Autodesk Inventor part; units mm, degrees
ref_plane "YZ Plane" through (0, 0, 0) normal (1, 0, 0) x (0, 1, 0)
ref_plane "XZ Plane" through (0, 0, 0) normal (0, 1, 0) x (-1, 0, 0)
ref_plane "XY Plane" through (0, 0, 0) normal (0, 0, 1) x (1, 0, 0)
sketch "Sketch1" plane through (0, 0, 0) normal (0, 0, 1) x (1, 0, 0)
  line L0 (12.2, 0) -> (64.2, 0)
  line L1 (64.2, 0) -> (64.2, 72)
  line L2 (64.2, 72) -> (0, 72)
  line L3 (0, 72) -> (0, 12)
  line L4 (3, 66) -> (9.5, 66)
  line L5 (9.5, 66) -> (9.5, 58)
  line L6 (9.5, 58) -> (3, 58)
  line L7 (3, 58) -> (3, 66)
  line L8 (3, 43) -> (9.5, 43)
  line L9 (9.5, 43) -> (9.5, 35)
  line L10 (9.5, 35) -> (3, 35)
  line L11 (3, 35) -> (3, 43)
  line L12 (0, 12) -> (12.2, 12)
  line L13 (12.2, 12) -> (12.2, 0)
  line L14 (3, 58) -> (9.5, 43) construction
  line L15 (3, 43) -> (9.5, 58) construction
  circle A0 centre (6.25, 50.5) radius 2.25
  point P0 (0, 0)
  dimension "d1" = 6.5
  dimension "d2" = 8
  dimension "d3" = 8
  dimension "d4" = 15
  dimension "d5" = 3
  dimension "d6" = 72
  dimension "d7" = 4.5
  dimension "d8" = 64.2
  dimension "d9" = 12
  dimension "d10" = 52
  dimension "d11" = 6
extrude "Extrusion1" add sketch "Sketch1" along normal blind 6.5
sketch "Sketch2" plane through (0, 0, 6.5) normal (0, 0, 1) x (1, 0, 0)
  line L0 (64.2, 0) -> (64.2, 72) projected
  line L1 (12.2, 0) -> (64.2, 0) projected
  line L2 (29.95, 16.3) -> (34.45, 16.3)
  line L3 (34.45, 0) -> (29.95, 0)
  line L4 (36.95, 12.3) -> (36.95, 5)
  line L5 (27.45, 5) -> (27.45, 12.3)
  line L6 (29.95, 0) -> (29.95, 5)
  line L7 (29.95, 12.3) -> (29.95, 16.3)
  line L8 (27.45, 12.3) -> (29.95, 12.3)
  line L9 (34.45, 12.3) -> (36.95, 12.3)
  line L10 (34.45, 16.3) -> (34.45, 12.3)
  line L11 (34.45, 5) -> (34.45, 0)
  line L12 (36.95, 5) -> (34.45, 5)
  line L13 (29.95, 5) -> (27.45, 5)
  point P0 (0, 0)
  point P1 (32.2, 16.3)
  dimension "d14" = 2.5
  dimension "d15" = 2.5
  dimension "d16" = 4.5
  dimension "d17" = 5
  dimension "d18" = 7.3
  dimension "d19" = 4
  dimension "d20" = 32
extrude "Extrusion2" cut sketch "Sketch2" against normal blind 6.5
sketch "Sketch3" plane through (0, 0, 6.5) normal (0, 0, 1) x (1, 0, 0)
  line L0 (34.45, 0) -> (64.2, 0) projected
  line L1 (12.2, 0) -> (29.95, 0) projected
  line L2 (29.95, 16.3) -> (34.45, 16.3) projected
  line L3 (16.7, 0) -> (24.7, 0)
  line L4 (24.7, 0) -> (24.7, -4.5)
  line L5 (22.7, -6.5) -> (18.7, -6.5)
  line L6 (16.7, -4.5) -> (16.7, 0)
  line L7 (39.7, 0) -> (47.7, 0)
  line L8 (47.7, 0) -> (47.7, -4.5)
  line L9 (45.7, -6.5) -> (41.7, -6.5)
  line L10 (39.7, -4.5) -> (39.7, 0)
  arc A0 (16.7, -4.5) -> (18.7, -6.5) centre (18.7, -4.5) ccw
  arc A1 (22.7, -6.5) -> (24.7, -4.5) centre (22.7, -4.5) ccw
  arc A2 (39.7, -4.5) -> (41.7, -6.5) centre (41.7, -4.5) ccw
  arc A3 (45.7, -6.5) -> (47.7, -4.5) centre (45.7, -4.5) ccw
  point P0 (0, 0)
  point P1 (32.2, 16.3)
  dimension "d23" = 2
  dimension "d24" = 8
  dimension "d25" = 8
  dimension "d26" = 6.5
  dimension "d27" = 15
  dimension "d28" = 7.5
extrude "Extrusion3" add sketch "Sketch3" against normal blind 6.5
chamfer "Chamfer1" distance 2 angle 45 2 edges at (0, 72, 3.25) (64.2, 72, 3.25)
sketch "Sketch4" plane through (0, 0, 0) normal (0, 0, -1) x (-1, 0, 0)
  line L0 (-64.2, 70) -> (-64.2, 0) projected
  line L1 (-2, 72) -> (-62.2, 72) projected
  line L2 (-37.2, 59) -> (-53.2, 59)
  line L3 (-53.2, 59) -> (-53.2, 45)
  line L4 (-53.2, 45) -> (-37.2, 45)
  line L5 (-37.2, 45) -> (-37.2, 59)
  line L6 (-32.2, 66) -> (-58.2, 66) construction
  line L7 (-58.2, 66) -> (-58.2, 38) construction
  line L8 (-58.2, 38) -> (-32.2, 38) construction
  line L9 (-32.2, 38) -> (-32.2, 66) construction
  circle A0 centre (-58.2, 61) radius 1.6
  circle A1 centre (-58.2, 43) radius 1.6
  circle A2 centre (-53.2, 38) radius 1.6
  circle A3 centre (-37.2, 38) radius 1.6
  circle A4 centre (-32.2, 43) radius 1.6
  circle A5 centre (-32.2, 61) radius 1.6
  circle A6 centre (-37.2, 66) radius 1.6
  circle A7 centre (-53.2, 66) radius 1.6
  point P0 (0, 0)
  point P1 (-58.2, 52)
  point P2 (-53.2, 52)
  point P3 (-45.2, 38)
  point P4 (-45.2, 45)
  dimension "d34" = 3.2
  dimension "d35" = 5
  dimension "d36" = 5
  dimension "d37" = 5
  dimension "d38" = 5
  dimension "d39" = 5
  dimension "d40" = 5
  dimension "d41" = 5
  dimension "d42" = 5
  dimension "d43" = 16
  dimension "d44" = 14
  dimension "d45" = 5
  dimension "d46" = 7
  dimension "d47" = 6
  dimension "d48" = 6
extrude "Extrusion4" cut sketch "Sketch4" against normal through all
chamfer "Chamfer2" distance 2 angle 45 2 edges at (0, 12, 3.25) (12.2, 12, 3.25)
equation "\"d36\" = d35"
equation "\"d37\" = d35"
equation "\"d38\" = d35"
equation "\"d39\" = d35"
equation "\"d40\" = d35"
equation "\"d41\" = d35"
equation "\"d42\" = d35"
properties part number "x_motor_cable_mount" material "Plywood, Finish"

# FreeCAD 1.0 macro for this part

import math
import FreeCAD as App
import Part
import Sketcher


def edges_at(feature, points):
    """Names of the edges that pass closest to the given points."""
    edges = feature.Shape.Edges
    near = lambda p: min(range(len(edges)), key=lambda i: edges[i].distToShape(Part.Vertex(*p))[0])
    return sorted({f"Edge{near(p) + 1}" for p in points})

doc = App.newDocument("Part")
params = doc.addObject("Spreadsheet::Sheet", "Params")
for row, (alias, value) in enumerate([
    ("sketch1_diameter", "4.5 mm"),
    ("sketch1_width", "52 mm"),
    ("sketch1_height", "12 mm"),
    ("sketch1_height2", "72 mm"),
    ("sketch1_height3", "8 mm"),
    ("pad1_length", "6.5 mm"),
    ("sketch2_height", "5 mm"),
    ("sketch2_height2", "4 mm"),
    ("sketch2_width", "4.5 mm"),
    ("sketch2_width2", "2.5 mm"),
    ("sketch2_height3", "7.3 mm"),
    ("pocket1_length", "6.5 mm"),
    ("sketch3_radius", "2 mm"),
    ("sketch3_width", "8 mm"),
    ("pad2_length", "6.5 mm"),
    ("chamfer_size", "2 mm"),
    ("sketch4_diameter", "3.2 mm"),
    ("sketch4_width", "16 mm"),
    ("sketch4_height", "14 mm"),
    ("chamfer2_size", "2 mm"),
], start=1):
    params.set(f"A{row}", alias)
    params.set(f"B{row}", "=" + value)
    params.setAlias(f"B{row}", alias)

body = doc.addObject("PartDesign::Body", "Body")

# Sketch on XY plane
sketch1 = body.newObject("Sketcher::SketchObject", "Sketch")
sketch1.AttachmentSupport = (doc.getObject("XY_Plane"), [""])
sketch1.MapMode = "FlatFace"
sketch1.addGeometry(Part.LineSegment(App.Vector(12.2, 12, 0), App.Vector(12.2, 0, 0)), False)
sketch1.addGeometry(Part.LineSegment(App.Vector(12.2, 0, 0), App.Vector(64.2, 0, 0)), False)
sketch1.addGeometry(Part.LineSegment(App.Vector(64.2, 0, 0), App.Vector(64.2, 72, 0)), False)
sketch1.addGeometry(Part.LineSegment(App.Vector(64.2, 72, 0), App.Vector(0, 72, 0)), False)
sketch1.addGeometry(Part.LineSegment(App.Vector(0, 72, 0), App.Vector(0, 12, 0)), False)
sketch1.addGeometry(Part.LineSegment(App.Vector(0, 12, 0), App.Vector(12.2, 12, 0)), False)
sketch1.addGeometry(Part.LineSegment(App.Vector(3, 35, 0), App.Vector(3, 43, 0)), False)
sketch1.addGeometry(Part.LineSegment(App.Vector(3, 43, 0), App.Vector(9.5, 43, 0)), False)
sketch1.addGeometry(Part.LineSegment(App.Vector(9.5, 43, 0), App.Vector(9.5, 35, 0)), False)
sketch1.addGeometry(Part.LineSegment(App.Vector(9.5, 35, 0), App.Vector(3, 35, 0)), False)
sketch1.addGeometry(Part.Circle(App.Vector(6.25, 50.5, 0), App.Vector(0, 0, 1), 2.25), False)
sketch1.addGeometry(Part.LineSegment(App.Vector(3, 58, 0), App.Vector(3, 66, 0)), False)
sketch1.addGeometry(Part.LineSegment(App.Vector(3, 66, 0), App.Vector(9.5, 66, 0)), False)
sketch1.addGeometry(Part.LineSegment(App.Vector(9.5, 66, 0), App.Vector(9.5, 58, 0)), False)
sketch1.addGeometry(Part.LineSegment(App.Vector(9.5, 58, 0), App.Vector(3, 58, 0)), False)
sketch1.addConstraint(Sketcher.Constraint("Coincident", 0, 2, 1, 1))
sketch1.addConstraint(Sketcher.Constraint("Coincident", 1, 2, 2, 1))
sketch1.addConstraint(Sketcher.Constraint("Coincident", 2, 2, 3, 1))
sketch1.addConstraint(Sketcher.Constraint("Coincident", 3, 2, 4, 1))
sketch1.addConstraint(Sketcher.Constraint("Coincident", 4, 2, 5, 1))
sketch1.addConstraint(Sketcher.Constraint("Coincident", 5, 2, 0, 1))
sketch1.addConstraint(Sketcher.Constraint("Coincident", 6, 2, 7, 1))
sketch1.addConstraint(Sketcher.Constraint("Coincident", 7, 2, 8, 1))
sketch1.addConstraint(Sketcher.Constraint("Coincident", 8, 2, 9, 1))
sketch1.addConstraint(Sketcher.Constraint("Coincident", 9, 2, 6, 1))
sketch1.addConstraint(Sketcher.Constraint("Coincident", 11, 2, 12, 1))
sketch1.addConstraint(Sketcher.Constraint("Coincident", 12, 2, 13, 1))
sketch1.addConstraint(Sketcher.Constraint("Coincident", 13, 2, 14, 1))
sketch1.addConstraint(Sketcher.Constraint("Coincident", 14, 2, 11, 1))
sketch1.addConstraint(Sketcher.Constraint("Vertical", 0))
sketch1.addConstraint(Sketcher.Constraint("Horizontal", 1))
sketch1.addConstraint(Sketcher.Constraint("Vertical", 2))
sketch1.addConstraint(Sketcher.Constraint("Horizontal", 3))
sketch1.addConstraint(Sketcher.Constraint("Vertical", 4))
sketch1.addConstraint(Sketcher.Constraint("Horizontal", 5))
sketch1.addConstraint(Sketcher.Constraint("Vertical", 6))
sketch1.addConstraint(Sketcher.Constraint("Horizontal", 7))
sketch1.addConstraint(Sketcher.Constraint("Vertical", 8))
sketch1.addConstraint(Sketcher.Constraint("Horizontal", 9))
sketch1.addConstraint(Sketcher.Constraint("Vertical", 11))
sketch1.addConstraint(Sketcher.Constraint("Horizontal", 12))
sketch1.addConstraint(Sketcher.Constraint("Vertical", 13))
sketch1.addConstraint(Sketcher.Constraint("Horizontal", 14))
sketch1.addConstraint(Sketcher.Constraint("PointOnObject", 0, 2, -1))
sketch1.addConstraint(Sketcher.Constraint("PointOnObject", 3, 2, -2))
sketch1.addConstraint(Sketcher.Constraint("Vertical", 9, 2, 11, 2))
sketch1.addConstraint(Sketcher.Constraint("Vertical", 8, 2, 12, 2))
sketch1.addConstraint(Sketcher.Constraint("Equal", 8, 11))
sketch1.addConstraint(Sketcher.Constraint("Diameter", 10, 4.5))
sketch1.addConstraint(Sketcher.Constraint("DistanceX", 1, 1, 1, 2, 52.0))
sketch1.addConstraint(Sketcher.Constraint("DistanceY", 0, 2, 0, 1, 12.0))
sketch1.addConstraint(Sketcher.Constraint("DistanceY", 2, 1, 2, 2, 72.0))
sketch1.addConstraint(Sketcher.Constraint("DistanceY", 6, 1, 6, 2, 8.0))
sketch1.addConstraint(Sketcher.Constraint("DistanceX", 3, 2, 3, 1, 64.2))
sketch1.addConstraint(Sketcher.Constraint("DistanceX", 7, 1, 7, 2, 6.5))
sketch1.addConstraint(Sketcher.Constraint("DistanceX", -1, 1, 6, 2, 3.0))
sketch1.addConstraint(Sketcher.Constraint("DistanceY", 11, 2, 3, 2, 6.0))
sketch1.addConstraint(Sketcher.Constraint("DistanceY", 7, 2, 13, 2, 15.0))
sketch1.addConstraint(Sketcher.Constraint("DistanceY", -1, 1, 10, 3, 50.5))
sketch1.addConstraint(Sketcher.Constraint("DistanceX", -1, 1, 10, 3, 6.25))
sketch1.setExpression("Constraints[33]", "Params.sketch1_diameter")
sketch1.setExpression("Constraints[34]", "Params.sketch1_width")
sketch1.setExpression("Constraints[35]", "Params.sketch1_height")
sketch1.setExpression("Constraints[36]", "Params.sketch1_height2")
sketch1.setExpression("Constraints[37]", "Params.sketch1_height3")
pad1 = body.newObject("PartDesign::Pad", "Pad")
pad1.Profile = sketch1
pad1.setExpression("Length", "Params.pad1_length")

# Sketch on XY plane
sketch2 = body.newObject("Sketcher::SketchObject", "Sketch001")
sketch2.AttachmentSupport = (doc.getObject("XY_Plane"), [""])
sketch2.MapMode = "FlatFace"
sketch2.AttachmentOffset = App.Placement(App.Vector(0, 0, 6.5), App.Rotation())
sketch2.addGeometry(Part.LineSegment(App.Vector(29.95, 5, 0), App.Vector(29.95, 0, 0)), False)
sketch2.addGeometry(Part.LineSegment(App.Vector(29.95, 0, 0), App.Vector(34.45, 0, 0)), False)
sketch2.addGeometry(Part.LineSegment(App.Vector(34.45, 0, 0), App.Vector(34.45, 5, 0)), False)
sketch2.addGeometry(Part.LineSegment(App.Vector(34.45, 5, 0), App.Vector(36.95, 5, 0)), False)
sketch2.addGeometry(Part.LineSegment(App.Vector(36.95, 5, 0), App.Vector(36.95, 12.3, 0)), False)
sketch2.addGeometry(Part.LineSegment(App.Vector(36.95, 12.3, 0), App.Vector(34.45, 12.3, 0)), False)
sketch2.addGeometry(Part.LineSegment(App.Vector(34.45, 12.3, 0), App.Vector(34.45, 16.3, 0)), False)
sketch2.addGeometry(Part.LineSegment(App.Vector(34.45, 16.3, 0), App.Vector(29.95, 16.3, 0)), False)
sketch2.addGeometry(Part.LineSegment(App.Vector(29.95, 16.3, 0), App.Vector(29.95, 12.3, 0)), False)
sketch2.addGeometry(Part.LineSegment(App.Vector(29.95, 12.3, 0), App.Vector(27.45, 12.3, 0)), False)
sketch2.addGeometry(Part.LineSegment(App.Vector(27.45, 12.3, 0), App.Vector(27.45, 5, 0)), False)
sketch2.addGeometry(Part.LineSegment(App.Vector(27.45, 5, 0), App.Vector(29.95, 5, 0)), False)
sketch2.addConstraint(Sketcher.Constraint("Coincident", 0, 2, 1, 1))
sketch2.addConstraint(Sketcher.Constraint("Coincident", 1, 2, 2, 1))
sketch2.addConstraint(Sketcher.Constraint("Coincident", 2, 2, 3, 1))
sketch2.addConstraint(Sketcher.Constraint("Coincident", 3, 2, 4, 1))
sketch2.addConstraint(Sketcher.Constraint("Coincident", 4, 2, 5, 1))
sketch2.addConstraint(Sketcher.Constraint("Coincident", 5, 2, 6, 1))
sketch2.addConstraint(Sketcher.Constraint("Coincident", 6, 2, 7, 1))
sketch2.addConstraint(Sketcher.Constraint("Coincident", 7, 2, 8, 1))
sketch2.addConstraint(Sketcher.Constraint("Coincident", 8, 2, 9, 1))
sketch2.addConstraint(Sketcher.Constraint("Coincident", 9, 2, 10, 1))
sketch2.addConstraint(Sketcher.Constraint("Coincident", 10, 2, 11, 1))
sketch2.addConstraint(Sketcher.Constraint("Coincident", 11, 2, 0, 1))
sketch2.addConstraint(Sketcher.Constraint("Vertical", 0))
sketch2.addConstraint(Sketcher.Constraint("Horizontal", 1))
sketch2.addConstraint(Sketcher.Constraint("Vertical", 2))
sketch2.addConstraint(Sketcher.Constraint("Horizontal", 3))
sketch2.addConstraint(Sketcher.Constraint("Vertical", 4))
sketch2.addConstraint(Sketcher.Constraint("Horizontal", 5))
sketch2.addConstraint(Sketcher.Constraint("Vertical", 6))
sketch2.addConstraint(Sketcher.Constraint("Horizontal", 7))
sketch2.addConstraint(Sketcher.Constraint("Vertical", 8))
sketch2.addConstraint(Sketcher.Constraint("Horizontal", 9))
sketch2.addConstraint(Sketcher.Constraint("Vertical", 10))
sketch2.addConstraint(Sketcher.Constraint("Horizontal", 11))
sketch2.addConstraint(Sketcher.Constraint("PointOnObject", 0, 2, -1))
sketch2.addConstraint(Sketcher.Constraint("Horizontal", 5, 2, 8, 2))
sketch2.addConstraint(Sketcher.Constraint("Horizontal", 3, 2, 10, 2))
sketch2.addConstraint(Sketcher.Constraint("Vertical", 2, 2, 5, 2))
sketch2.addConstraint(Sketcher.Constraint("Vertical", 0, 2, 7, 2))
sketch2.addConstraint(Sketcher.Constraint("Equal", 5, 9))
sketch2.addConstraint(Sketcher.Constraint("DistanceY", 0, 2, 0, 1, 5.0))
sketch2.addConstraint(Sketcher.Constraint("DistanceY", 6, 1, 6, 2, 4.0))
sketch2.addConstraint(Sketcher.Constraint("DistanceX", 1, 1, 1, 2, 4.5))
sketch2.addConstraint(Sketcher.Constraint("DistanceX", 3, 1, 3, 2, 2.5))
sketch2.addConstraint(Sketcher.Constraint("DistanceY", 4, 1, 4, 2, 7.3))
sketch2.addConstraint(Sketcher.Constraint("DistanceX", -1, 1, 0, 2, 29.95))
sketch2.setExpression("Constraints[30]", "Params.sketch2_height")
sketch2.setExpression("Constraints[31]", "Params.sketch2_height2")
sketch2.setExpression("Constraints[32]", "Params.sketch2_width")
sketch2.setExpression("Constraints[33]", "Params.sketch2_width2")
sketch2.setExpression("Constraints[34]", "Params.sketch2_height3")
pocket1 = body.newObject("PartDesign::Pocket", "Pocket")
pocket1.Profile = sketch2
pocket1.setExpression("Length", "Params.pocket1_length")

# Sketch on XY plane
sketch3 = body.newObject("Sketcher::SketchObject", "Sketch002")
sketch3.AttachmentSupport = (doc.getObject("XY_Plane"), [""])
sketch3.MapMode = "FlatFace"
sketch3.AttachmentOffset = App.Placement(App.Vector(0, 0, 6.5), App.Rotation())
sketch3.addGeometry(Part.LineSegment(App.Vector(47.7, 0, 0), App.Vector(39.7, 0, 0)), False)
sketch3.addGeometry(Part.LineSegment(App.Vector(39.7, 0, 0), App.Vector(39.7, -4.5, 0)), False)
sketch3.addGeometry(Part.ArcOfCircle(Part.Circle(App.Vector(41.7, -4.5, 0), App.Vector(0, 0, 1), 2), math.radians(180), math.radians(270)), False)
sketch3.addGeometry(Part.LineSegment(App.Vector(41.7, -6.5, 0), App.Vector(45.7, -6.5, 0)), False)
sketch3.addGeometry(Part.ArcOfCircle(Part.Circle(App.Vector(45.7, -4.5, 0), App.Vector(0, 0, 1), 2), math.radians(-90), math.radians(0)), False)
sketch3.addGeometry(Part.LineSegment(App.Vector(47.7, -4.5, 0), App.Vector(47.7, 0, 0)), False)
sketch3.addGeometry(Part.LineSegment(App.Vector(24.7, 0, 0), App.Vector(16.7, 0, 0)), False)
sketch3.addGeometry(Part.LineSegment(App.Vector(16.7, 0, 0), App.Vector(16.7, -4.5, 0)), False)
sketch3.addGeometry(Part.ArcOfCircle(Part.Circle(App.Vector(18.7, -4.5, 0), App.Vector(0, 0, 1), 2), math.radians(180), math.radians(270)), False)
sketch3.addGeometry(Part.LineSegment(App.Vector(18.7, -6.5, 0), App.Vector(22.7, -6.5, 0)), False)
sketch3.addGeometry(Part.ArcOfCircle(Part.Circle(App.Vector(22.7, -4.5, 0), App.Vector(0, 0, 1), 2), math.radians(-90), math.radians(0)), False)
sketch3.addGeometry(Part.LineSegment(App.Vector(24.7, -4.5, 0), App.Vector(24.7, 0, 0)), False)
sketch3.addConstraint(Sketcher.Constraint("Coincident", 0, 2, 1, 1))
sketch3.addConstraint(Sketcher.Constraint("Tangent", 1, 2, 2, 1))
sketch3.addConstraint(Sketcher.Constraint("Tangent", 2, 2, 3, 1))
sketch3.addConstraint(Sketcher.Constraint("Tangent", 3, 2, 4, 1))
sketch3.addConstraint(Sketcher.Constraint("Tangent", 4, 2, 5, 1))
sketch3.addConstraint(Sketcher.Constraint("Coincident", 5, 2, 0, 1))
sketch3.addConstraint(Sketcher.Constraint("Coincident", 6, 2, 7, 1))
sketch3.addConstraint(Sketcher.Constraint("Tangent", 7, 2, 8, 1))
sketch3.addConstraint(Sketcher.Constraint("Tangent", 8, 2, 9, 1))
sketch3.addConstraint(Sketcher.Constraint("Tangent", 9, 2, 10, 1))
sketch3.addConstraint(Sketcher.Constraint("Tangent", 10, 2, 11, 1))
sketch3.addConstraint(Sketcher.Constraint("Coincident", 11, 2, 6, 1))
sketch3.addConstraint(Sketcher.Constraint("Horizontal", 0))
sketch3.addConstraint(Sketcher.Constraint("Vertical", 1))
sketch3.addConstraint(Sketcher.Constraint("Horizontal", 3))
sketch3.addConstraint(Sketcher.Constraint("Vertical", 5))
sketch3.addConstraint(Sketcher.Constraint("Horizontal", 6))
sketch3.addConstraint(Sketcher.Constraint("Vertical", 7))
sketch3.addConstraint(Sketcher.Constraint("Horizontal", 9))
sketch3.addConstraint(Sketcher.Constraint("Vertical", 11))
sketch3.addConstraint(Sketcher.Constraint("Equal", 2, 4))
sketch3.addConstraint(Sketcher.Constraint("Equal", 4, 8))
sketch3.addConstraint(Sketcher.Constraint("Equal", 8, 10))
sketch3.addConstraint(Sketcher.Constraint("PointOnObject", 0, 2, -1))
sketch3.addConstraint(Sketcher.Constraint("PointOnObject", 6, 2, -1))
sketch3.addConstraint(Sketcher.Constraint("Horizontal", 4, 3, 8, 3))
sketch3.addConstraint(Sketcher.Constraint("Equal", 0, 6))
sketch3.addConstraint(Sketcher.Constraint("Radius", 2, 2.0))
sketch3.addConstraint(Sketcher.Constraint("DistanceX", 0, 2, 0, 1, 8.0))
sketch3.addConstraint(Sketcher.Constraint("DistanceY", 2, 2, -1, 1, 6.5))
sketch3.addConstraint(Sketcher.Constraint("DistanceX", 8, 3, 2, 3, 23.0))
sketch3.addConstraint(Sketcher.Constraint("DistanceX", -1, 1, 2, 3, 41.7))
sketch3.setExpression("Constraints[27]", "Params.sketch3_radius")
sketch3.setExpression("Constraints[28]", "Params.sketch3_width")
pad2 = body.newObject("PartDesign::Pad", "Pad001")
pad2.Profile = sketch3
pad2.setExpression("Length", "Params.pad2_length")
pad2.Reversed = True
doc.recompute()

chamfer = body.newObject("PartDesign::Chamfer", "Chamfer")
chamfer.Base = (pad2, edges_at(pad2, [(0, 72, 3.25), (64.2, 72, 3.25)]))
chamfer.setExpression("Size", "Params.chamfer_size")

# Sketch on XY plane
sketch4 = body.newObject("Sketcher::SketchObject", "Sketch003")
sketch4.AttachmentSupport = (doc.getObject("XY_Plane"), [""])
sketch4.MapMode = "FlatFace"
sketch4.addGeometry(Part.LineSegment(App.Vector(37.2, 45, 0), App.Vector(37.2, 59, 0)), False)
sketch4.addGeometry(Part.LineSegment(App.Vector(37.2, 59, 0), App.Vector(53.2, 59, 0)), False)
sketch4.addGeometry(Part.LineSegment(App.Vector(53.2, 59, 0), App.Vector(53.2, 45, 0)), False)
sketch4.addGeometry(Part.LineSegment(App.Vector(53.2, 45, 0), App.Vector(37.2, 45, 0)), False)
sketch4.addGeometry(Part.Circle(App.Vector(58.2, 61, 0), App.Vector(0, 0, 1), 1.6), False)
sketch4.addGeometry(Part.Circle(App.Vector(58.2, 43, 0), App.Vector(0, 0, 1), 1.6), False)
sketch4.addGeometry(Part.Circle(App.Vector(53.2, 38, 0), App.Vector(0, 0, 1), 1.6), False)
sketch4.addGeometry(Part.Circle(App.Vector(37.2, 38, 0), App.Vector(0, 0, 1), 1.6), False)
sketch4.addGeometry(Part.Circle(App.Vector(32.2, 43, 0), App.Vector(0, 0, 1), 1.6), False)
sketch4.addGeometry(Part.Circle(App.Vector(32.2, 61, 0), App.Vector(0, 0, 1), 1.6), False)
sketch4.addGeometry(Part.Circle(App.Vector(37.2, 66, 0), App.Vector(0, 0, 1), 1.6), False)
sketch4.addGeometry(Part.Circle(App.Vector(53.2, 66, 0), App.Vector(0, 0, 1), 1.6), False)
sketch4.addConstraint(Sketcher.Constraint("Coincident", 0, 2, 1, 1))
sketch4.addConstraint(Sketcher.Constraint("Coincident", 1, 2, 2, 1))
sketch4.addConstraint(Sketcher.Constraint("Coincident", 2, 2, 3, 1))
sketch4.addConstraint(Sketcher.Constraint("Coincident", 3, 2, 0, 1))
sketch4.addConstraint(Sketcher.Constraint("Vertical", 0))
sketch4.addConstraint(Sketcher.Constraint("Horizontal", 1))
sketch4.addConstraint(Sketcher.Constraint("Vertical", 2))
sketch4.addConstraint(Sketcher.Constraint("Horizontal", 3))
sketch4.addConstraint(Sketcher.Constraint("Equal", 4, 5))
sketch4.addConstraint(Sketcher.Constraint("Equal", 5, 6))
sketch4.addConstraint(Sketcher.Constraint("Equal", 6, 7))
sketch4.addConstraint(Sketcher.Constraint("Equal", 7, 8))
sketch4.addConstraint(Sketcher.Constraint("Equal", 8, 9))
sketch4.addConstraint(Sketcher.Constraint("Equal", 9, 10))
sketch4.addConstraint(Sketcher.Constraint("Equal", 10, 11))
sketch4.addConstraint(Sketcher.Constraint("Horizontal", 6, 3, 7, 3))
sketch4.addConstraint(Sketcher.Constraint("Horizontal", 5, 3, 8, 3))
sketch4.addConstraint(Sketcher.Constraint("Horizontal", 4, 3, 9, 3))
sketch4.addConstraint(Sketcher.Constraint("Horizontal", 10, 3, 11, 3))
sketch4.addConstraint(Sketcher.Constraint("Vertical", 4, 3, 5, 3))
sketch4.addConstraint(Sketcher.Constraint("Vertical", 8, 3, 9, 3))
sketch4.addConstraint(Sketcher.Constraint("Vertical", 7, 3, 10, 3))
sketch4.addConstraint(Sketcher.Constraint("Vertical", 6, 3, 11, 3))
sketch4.addConstraint(Sketcher.Constraint("Vertical", 10, 3, 0, 2))
sketch4.addConstraint(Sketcher.Constraint("Vertical", 11, 3, 1, 2))
sketch4.addConstraint(Sketcher.Constraint("Diameter", 4, 3.2))
sketch4.addConstraint(Sketcher.Constraint("DistanceX", 1, 1, 1, 2, 16.0))
sketch4.addConstraint(Sketcher.Constraint("DistanceY", 0, 1, 0, 2, 14.0))
sketch4.addConstraint(Sketcher.Constraint("DistanceX", 6, 3, 5, 3, 5.0))
sketch4.addConstraint(Sketcher.Constraint("DistanceY", 6, 3, 5, 3, 5.0))
sketch4.addConstraint(Sketcher.Constraint("DistanceX", 8, 3, 7, 3, 5.0))
sketch4.addConstraint(Sketcher.Constraint("DistanceY", 9, 3, 10, 3, 5.0))
sketch4.addConstraint(Sketcher.Constraint("DistanceY", 0, 2, 10, 3, 7.0))
sketch4.addConstraint(Sketcher.Constraint("DistanceY", 8, 3, 0, 2, 16.0))
sketch4.addConstraint(Sketcher.Constraint("DistanceY", -1, 1, 4, 3, 61.0))
sketch4.addConstraint(Sketcher.Constraint("DistanceX", -1, 1, 4, 3, 58.2))
sketch4.setExpression("Constraints[25]", "Params.sketch4_diameter")
sketch4.setExpression("Constraints[26]", "Params.sketch4_width")
sketch4.setExpression("Constraints[27]", "Params.sketch4_height")
pocket2 = body.newObject("PartDesign::Pocket", "Pocket001")
pocket2.Profile = sketch4
pocket2.Type = "ThroughAll"
pocket2.Reversed = True
doc.recompute()

chamfer2 = body.newObject("PartDesign::Chamfer", "Chamfer001")
chamfer2.Base = (pocket2, edges_at(pocket2, [(0, 12, 3.25), (12.2, 12, 3.25)]))
chamfer2.setExpression("Size", "Params.chamfer2_size")

doc.recompute()
